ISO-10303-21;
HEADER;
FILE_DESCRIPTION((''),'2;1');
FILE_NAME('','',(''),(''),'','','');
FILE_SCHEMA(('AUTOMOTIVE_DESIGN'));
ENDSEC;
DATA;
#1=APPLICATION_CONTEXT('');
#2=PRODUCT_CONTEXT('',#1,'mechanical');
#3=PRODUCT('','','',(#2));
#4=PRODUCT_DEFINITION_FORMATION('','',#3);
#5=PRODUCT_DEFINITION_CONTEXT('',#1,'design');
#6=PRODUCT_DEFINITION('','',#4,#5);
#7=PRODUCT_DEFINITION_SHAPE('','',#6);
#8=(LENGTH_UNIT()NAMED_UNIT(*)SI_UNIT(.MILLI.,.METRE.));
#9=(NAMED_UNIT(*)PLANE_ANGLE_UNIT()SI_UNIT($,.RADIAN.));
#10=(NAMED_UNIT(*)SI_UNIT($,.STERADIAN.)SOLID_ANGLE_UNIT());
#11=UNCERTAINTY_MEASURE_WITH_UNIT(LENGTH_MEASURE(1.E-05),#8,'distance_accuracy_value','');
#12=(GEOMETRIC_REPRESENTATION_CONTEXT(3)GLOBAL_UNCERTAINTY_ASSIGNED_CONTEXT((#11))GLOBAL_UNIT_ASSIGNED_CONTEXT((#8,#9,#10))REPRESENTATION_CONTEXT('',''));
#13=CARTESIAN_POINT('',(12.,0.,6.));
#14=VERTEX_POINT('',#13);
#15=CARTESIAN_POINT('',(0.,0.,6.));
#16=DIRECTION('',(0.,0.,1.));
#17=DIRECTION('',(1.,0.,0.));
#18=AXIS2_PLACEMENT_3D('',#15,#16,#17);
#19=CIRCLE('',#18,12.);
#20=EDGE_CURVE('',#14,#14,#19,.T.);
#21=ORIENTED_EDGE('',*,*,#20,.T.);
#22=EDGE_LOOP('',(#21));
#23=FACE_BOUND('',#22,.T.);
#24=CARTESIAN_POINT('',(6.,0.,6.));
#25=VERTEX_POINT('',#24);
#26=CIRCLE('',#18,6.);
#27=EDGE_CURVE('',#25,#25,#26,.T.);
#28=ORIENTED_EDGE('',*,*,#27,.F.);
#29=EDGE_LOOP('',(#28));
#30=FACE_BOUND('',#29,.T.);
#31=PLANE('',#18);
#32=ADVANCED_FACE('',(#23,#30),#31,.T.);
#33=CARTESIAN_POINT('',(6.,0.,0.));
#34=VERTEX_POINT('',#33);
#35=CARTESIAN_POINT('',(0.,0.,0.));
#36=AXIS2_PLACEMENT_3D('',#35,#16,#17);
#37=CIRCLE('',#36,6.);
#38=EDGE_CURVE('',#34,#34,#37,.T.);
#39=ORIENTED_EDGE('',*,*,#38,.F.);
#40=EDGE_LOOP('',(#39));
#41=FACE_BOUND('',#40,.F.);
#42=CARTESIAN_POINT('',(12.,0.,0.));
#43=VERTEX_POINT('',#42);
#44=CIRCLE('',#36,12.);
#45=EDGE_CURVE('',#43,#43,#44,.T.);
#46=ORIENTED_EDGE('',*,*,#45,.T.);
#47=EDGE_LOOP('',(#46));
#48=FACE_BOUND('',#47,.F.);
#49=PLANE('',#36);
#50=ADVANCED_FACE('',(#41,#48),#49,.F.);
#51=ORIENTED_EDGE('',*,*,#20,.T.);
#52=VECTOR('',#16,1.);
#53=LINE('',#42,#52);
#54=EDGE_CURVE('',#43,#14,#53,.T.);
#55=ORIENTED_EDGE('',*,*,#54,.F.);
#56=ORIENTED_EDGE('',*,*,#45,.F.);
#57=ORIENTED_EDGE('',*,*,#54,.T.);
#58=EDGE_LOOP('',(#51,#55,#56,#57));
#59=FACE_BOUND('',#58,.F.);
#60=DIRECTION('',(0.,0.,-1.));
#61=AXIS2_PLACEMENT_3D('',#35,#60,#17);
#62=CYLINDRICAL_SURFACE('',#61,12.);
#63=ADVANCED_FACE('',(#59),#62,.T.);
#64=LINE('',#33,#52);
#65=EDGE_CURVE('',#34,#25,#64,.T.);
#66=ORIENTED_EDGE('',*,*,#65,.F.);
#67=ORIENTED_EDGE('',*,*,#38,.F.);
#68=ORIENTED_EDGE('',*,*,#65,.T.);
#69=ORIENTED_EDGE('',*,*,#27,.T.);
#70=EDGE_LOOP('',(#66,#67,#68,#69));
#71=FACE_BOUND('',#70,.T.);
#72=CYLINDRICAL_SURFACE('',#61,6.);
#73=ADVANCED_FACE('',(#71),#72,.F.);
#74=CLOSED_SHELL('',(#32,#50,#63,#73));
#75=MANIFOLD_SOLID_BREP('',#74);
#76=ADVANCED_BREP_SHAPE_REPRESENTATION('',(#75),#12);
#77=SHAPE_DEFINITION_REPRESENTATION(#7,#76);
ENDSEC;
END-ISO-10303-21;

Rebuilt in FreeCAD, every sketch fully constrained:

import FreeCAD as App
import Part
import Sketcher
from FreeCAD import Vector
Q = App.Units.Quantity

doc = App.newDocument("Part")
body = doc.addObject("PartDesign::Body", "Body")

# Sketch on XY plane
sketch1 = doc.addObject("Sketcher::SketchObject", "Sketch")
body.addObject(sketch1)
sketch1.AttachmentSupport = (doc.XY_Plane, [""])
sketch1.MapMode = "FlatFace"
sketch1.addGeometry([
    Part.Circle(Vector(0, 0, 0), Vector(0, 0, 1), 12),
    Part.Circle(Vector(0, 0, 0), Vector(0, 0, 1), 6),
], False)
sketch1.addConstraint([
    Sketcher.Constraint("Coincident", 0, 3, -1, 1),
    Sketcher.Constraint("Coincident", 1, 3, -1, 1),
    Sketcher.Constraint("Diameter", 0, Q("24 mm")),
    Sketcher.Constraint("Diameter", 1, Q("12 mm")),
])
pad1 = doc.addObject("PartDesign::Pad", "Pad")
body.addObject(pad1)
pad1.Profile = sketch1
pad1.Length = 6

doc.recompute()
